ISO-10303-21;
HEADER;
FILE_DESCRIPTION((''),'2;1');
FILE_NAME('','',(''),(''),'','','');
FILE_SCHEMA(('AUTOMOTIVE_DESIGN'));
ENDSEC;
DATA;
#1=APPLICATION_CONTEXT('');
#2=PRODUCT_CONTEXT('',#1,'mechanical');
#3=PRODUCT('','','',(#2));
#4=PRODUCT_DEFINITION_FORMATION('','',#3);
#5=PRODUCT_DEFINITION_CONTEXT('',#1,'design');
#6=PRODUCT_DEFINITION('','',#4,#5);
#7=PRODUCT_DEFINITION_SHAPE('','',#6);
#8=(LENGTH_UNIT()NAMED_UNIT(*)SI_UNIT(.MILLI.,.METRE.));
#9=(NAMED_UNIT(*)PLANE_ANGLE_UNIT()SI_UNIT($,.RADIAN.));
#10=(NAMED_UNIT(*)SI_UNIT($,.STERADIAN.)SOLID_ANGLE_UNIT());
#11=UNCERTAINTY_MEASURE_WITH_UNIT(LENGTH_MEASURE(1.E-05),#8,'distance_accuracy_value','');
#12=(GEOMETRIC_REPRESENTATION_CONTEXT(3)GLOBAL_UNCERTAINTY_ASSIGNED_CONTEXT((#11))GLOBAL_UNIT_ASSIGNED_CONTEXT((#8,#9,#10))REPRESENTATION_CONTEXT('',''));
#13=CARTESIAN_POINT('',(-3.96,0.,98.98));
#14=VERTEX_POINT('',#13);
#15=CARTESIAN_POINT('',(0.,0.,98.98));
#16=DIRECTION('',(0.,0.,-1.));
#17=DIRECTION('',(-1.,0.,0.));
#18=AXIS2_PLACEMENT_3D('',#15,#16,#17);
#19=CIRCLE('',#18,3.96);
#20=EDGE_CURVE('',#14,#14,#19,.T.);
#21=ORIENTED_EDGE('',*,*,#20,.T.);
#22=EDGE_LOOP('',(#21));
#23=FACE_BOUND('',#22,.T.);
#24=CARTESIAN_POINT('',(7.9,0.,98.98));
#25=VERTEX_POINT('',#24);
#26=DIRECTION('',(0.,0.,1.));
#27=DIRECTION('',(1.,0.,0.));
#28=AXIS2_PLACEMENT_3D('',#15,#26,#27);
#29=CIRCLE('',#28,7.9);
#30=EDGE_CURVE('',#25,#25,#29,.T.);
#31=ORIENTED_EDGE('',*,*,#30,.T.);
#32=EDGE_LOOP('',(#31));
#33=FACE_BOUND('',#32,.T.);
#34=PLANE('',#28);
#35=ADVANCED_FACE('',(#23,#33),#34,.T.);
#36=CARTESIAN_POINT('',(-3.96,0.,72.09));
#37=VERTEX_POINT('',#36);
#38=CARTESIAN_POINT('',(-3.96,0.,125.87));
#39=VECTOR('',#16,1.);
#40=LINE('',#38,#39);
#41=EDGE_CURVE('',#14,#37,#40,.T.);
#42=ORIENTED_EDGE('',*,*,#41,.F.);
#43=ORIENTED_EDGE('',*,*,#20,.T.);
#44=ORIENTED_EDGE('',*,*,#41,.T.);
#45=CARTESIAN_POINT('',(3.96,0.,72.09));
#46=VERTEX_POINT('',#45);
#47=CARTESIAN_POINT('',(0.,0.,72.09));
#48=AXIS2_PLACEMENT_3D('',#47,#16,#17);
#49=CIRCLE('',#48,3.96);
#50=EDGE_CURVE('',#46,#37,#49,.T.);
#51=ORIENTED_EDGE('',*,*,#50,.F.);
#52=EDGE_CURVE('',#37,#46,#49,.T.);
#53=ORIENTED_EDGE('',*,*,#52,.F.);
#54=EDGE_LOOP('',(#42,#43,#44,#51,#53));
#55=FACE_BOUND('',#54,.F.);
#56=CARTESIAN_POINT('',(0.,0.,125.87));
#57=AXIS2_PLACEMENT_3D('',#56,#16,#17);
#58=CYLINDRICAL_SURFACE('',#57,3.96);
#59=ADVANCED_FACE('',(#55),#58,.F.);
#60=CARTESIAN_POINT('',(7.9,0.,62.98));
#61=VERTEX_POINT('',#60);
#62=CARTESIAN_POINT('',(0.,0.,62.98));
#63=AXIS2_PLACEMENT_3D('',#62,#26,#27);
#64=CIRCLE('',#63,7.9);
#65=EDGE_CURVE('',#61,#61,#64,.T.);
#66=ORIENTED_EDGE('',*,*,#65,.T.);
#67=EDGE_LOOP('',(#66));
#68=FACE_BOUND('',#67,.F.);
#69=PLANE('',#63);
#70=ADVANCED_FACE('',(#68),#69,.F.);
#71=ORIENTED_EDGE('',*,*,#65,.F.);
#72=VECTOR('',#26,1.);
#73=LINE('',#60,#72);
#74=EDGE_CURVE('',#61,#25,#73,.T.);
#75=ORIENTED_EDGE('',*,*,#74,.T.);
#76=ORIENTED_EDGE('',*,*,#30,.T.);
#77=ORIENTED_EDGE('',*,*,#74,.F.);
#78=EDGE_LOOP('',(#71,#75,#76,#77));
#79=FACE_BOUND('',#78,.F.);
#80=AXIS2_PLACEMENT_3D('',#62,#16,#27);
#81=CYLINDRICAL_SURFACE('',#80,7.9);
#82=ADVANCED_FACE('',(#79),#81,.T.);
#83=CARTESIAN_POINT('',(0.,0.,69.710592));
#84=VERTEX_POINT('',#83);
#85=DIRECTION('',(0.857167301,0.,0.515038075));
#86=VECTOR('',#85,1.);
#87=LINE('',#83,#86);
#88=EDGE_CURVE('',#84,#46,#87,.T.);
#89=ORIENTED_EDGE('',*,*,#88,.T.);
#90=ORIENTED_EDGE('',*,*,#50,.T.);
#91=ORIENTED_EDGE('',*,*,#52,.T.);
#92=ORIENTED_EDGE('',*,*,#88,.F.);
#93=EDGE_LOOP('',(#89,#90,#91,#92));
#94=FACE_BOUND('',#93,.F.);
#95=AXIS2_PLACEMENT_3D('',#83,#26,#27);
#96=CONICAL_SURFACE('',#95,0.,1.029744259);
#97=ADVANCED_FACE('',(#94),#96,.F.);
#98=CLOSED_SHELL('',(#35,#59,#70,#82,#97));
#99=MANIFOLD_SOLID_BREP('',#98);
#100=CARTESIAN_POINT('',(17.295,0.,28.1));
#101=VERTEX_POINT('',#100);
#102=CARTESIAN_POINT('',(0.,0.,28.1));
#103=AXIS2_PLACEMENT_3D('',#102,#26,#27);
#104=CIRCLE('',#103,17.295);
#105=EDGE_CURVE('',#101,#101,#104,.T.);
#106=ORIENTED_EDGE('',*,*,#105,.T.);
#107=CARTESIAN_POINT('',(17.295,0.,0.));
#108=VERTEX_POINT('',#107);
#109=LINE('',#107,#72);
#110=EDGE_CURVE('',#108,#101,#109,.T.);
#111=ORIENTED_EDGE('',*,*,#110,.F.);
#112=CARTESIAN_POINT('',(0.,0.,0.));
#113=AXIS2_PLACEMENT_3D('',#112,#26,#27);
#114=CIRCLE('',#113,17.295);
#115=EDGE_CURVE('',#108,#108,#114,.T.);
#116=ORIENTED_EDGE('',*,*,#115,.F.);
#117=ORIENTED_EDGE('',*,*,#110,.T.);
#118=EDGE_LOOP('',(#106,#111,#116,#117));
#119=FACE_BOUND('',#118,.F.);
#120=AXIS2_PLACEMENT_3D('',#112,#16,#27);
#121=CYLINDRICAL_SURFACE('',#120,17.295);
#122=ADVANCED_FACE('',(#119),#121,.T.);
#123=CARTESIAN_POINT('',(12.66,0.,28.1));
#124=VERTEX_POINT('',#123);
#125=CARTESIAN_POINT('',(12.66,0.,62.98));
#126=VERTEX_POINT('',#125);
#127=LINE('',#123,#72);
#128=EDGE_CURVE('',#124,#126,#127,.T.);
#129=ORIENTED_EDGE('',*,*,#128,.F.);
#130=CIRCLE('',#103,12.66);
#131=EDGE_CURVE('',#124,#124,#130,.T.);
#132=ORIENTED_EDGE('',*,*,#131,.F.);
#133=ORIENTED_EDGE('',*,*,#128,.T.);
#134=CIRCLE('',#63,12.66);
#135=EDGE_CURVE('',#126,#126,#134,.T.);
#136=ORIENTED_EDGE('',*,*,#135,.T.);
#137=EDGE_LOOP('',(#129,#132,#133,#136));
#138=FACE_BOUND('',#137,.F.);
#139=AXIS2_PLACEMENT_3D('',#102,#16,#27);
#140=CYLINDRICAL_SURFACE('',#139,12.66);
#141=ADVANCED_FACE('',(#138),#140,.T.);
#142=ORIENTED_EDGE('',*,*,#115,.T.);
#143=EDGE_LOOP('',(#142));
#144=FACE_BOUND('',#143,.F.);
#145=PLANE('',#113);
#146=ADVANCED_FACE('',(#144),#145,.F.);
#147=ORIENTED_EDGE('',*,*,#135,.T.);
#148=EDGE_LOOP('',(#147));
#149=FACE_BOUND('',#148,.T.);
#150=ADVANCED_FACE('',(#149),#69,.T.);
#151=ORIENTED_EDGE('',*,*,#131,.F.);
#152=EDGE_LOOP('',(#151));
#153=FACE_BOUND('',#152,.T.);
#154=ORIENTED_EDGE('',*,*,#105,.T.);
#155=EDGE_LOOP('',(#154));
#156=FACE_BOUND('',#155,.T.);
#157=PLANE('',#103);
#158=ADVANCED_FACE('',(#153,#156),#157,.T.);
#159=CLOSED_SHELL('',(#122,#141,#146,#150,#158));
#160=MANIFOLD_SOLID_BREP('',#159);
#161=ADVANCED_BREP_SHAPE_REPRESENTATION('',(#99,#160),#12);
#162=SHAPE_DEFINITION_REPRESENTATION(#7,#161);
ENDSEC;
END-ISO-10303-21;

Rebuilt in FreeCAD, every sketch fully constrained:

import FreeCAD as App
import Part
import Sketcher
from FreeCAD import Vector
Q = App.Units.Quantity

doc = App.newDocument("Part")
body = doc.addObject("PartDesign::Body", "Body")

# Sketch on XY plane
sketch1 = body.newObject("Sketcher::SketchObject", "Sketch")
sketch1.AttachmentSupport = (doc.getObject("XY_Plane"), [""])
sketch1.MapMode = "FlatFace"
sketch1.addGeometry(Part.Circle(Vector(0, 0, 0), Vector(0, 0, 1), 17), False)
sketch1.addConstraint(Sketcher.Constraint("Coincident", 0, 3, -1, 1))
sketch1.addConstraint(Sketcher.Constraint("Diameter", 0, Q("34.59 mm")))
pad1 = body.newObject("PartDesign::Pad", "Pad")
pad1.Profile = sketch1
pad1.Length = 28.1

# Sketch on XY plane
sketch2 = body.newObject("Sketcher::SketchObject", "Sketch001")
sketch2.AttachmentSupport = (doc.getObject("XY_Plane"), [""])
sketch2.MapMode = "FlatFace"
sketch2.AttachmentOffset = App.Placement(Vector(0, 0, 28.1), App.Rotation())
sketch2.addGeometry(Part.Circle(Vector(0, 0, 0), Vector(0, 0, 1), 13), False)
sketch2.addConstraint(Sketcher.Constraint("Coincident", 0, 3, -1, 1))
sketch2.addConstraint(Sketcher.Constraint("Diameter", 0, Q("25.32 mm")))
pad2 = body.newObject("PartDesign::Pad", "Pad001")
pad2.Profile = sketch2
pad2.Length = 34.88
body2 = doc.addObject("PartDesign::Body", "Body001")

# Sketch on XY plane
sketch3 = body2.newObject("Sketcher::SketchObject", "Sketch002")
sketch3.AttachmentSupport = (doc.getObject("XY_Plane001"), [""])
sketch3.MapMode = "FlatFace"
sketch3.AttachmentOffset = App.Placement(Vector(0, 0, 62.98), App.Rotation())
sketch3.addGeometry(Part.Circle(Vector(0, 0, 0), Vector(0, 0, 1), 8), False)
sketch3.addConstraint(Sketcher.Constraint("Coincident", 0, 3, -1, 1))
sketch3.addConstraint(Sketcher.Constraint("Diameter", 0, Q("15.8 mm")))
pad3 = body2.newObject("PartDesign::Pad", "Pad002")
pad3.Profile = sketch3
pad3.Length = 36

# Sketch on XY plane
sketch4 = body2.newObject("Sketcher::SketchObject", "Sketch003")
sketch4.AttachmentSupport = (doc.getObject("XY_Plane001"), [""])
sketch4.MapMode = "FlatFace"
sketch4.AttachmentOffset = App.Placement(Vector(0, 0, 98.98), App.Rotation())
sketch4.addGeometry(Part.Circle(Vector(0, 0, 0), Vector(0, 0, 1), 4), False)
sketch4.addConstraint(Sketcher.Constraint("Coincident", 0, 3, -1, 1))
sketch4.addConstraint(Sketcher.Constraint("Diameter", 0, Q("7.92 mm")))
doc.recompute()
hole = body2.newObject("PartDesign::Hole", "Hole")
hole.Profile = sketch4
hole.ThreadType = "None"
hole.Diameter = 7.92
hole.DepthType = "Dimension"
hole.Depth = 26.89
hole.DrillPoint = "Angled"
hole.DrillPointAngle = 118

doc.recompute()
